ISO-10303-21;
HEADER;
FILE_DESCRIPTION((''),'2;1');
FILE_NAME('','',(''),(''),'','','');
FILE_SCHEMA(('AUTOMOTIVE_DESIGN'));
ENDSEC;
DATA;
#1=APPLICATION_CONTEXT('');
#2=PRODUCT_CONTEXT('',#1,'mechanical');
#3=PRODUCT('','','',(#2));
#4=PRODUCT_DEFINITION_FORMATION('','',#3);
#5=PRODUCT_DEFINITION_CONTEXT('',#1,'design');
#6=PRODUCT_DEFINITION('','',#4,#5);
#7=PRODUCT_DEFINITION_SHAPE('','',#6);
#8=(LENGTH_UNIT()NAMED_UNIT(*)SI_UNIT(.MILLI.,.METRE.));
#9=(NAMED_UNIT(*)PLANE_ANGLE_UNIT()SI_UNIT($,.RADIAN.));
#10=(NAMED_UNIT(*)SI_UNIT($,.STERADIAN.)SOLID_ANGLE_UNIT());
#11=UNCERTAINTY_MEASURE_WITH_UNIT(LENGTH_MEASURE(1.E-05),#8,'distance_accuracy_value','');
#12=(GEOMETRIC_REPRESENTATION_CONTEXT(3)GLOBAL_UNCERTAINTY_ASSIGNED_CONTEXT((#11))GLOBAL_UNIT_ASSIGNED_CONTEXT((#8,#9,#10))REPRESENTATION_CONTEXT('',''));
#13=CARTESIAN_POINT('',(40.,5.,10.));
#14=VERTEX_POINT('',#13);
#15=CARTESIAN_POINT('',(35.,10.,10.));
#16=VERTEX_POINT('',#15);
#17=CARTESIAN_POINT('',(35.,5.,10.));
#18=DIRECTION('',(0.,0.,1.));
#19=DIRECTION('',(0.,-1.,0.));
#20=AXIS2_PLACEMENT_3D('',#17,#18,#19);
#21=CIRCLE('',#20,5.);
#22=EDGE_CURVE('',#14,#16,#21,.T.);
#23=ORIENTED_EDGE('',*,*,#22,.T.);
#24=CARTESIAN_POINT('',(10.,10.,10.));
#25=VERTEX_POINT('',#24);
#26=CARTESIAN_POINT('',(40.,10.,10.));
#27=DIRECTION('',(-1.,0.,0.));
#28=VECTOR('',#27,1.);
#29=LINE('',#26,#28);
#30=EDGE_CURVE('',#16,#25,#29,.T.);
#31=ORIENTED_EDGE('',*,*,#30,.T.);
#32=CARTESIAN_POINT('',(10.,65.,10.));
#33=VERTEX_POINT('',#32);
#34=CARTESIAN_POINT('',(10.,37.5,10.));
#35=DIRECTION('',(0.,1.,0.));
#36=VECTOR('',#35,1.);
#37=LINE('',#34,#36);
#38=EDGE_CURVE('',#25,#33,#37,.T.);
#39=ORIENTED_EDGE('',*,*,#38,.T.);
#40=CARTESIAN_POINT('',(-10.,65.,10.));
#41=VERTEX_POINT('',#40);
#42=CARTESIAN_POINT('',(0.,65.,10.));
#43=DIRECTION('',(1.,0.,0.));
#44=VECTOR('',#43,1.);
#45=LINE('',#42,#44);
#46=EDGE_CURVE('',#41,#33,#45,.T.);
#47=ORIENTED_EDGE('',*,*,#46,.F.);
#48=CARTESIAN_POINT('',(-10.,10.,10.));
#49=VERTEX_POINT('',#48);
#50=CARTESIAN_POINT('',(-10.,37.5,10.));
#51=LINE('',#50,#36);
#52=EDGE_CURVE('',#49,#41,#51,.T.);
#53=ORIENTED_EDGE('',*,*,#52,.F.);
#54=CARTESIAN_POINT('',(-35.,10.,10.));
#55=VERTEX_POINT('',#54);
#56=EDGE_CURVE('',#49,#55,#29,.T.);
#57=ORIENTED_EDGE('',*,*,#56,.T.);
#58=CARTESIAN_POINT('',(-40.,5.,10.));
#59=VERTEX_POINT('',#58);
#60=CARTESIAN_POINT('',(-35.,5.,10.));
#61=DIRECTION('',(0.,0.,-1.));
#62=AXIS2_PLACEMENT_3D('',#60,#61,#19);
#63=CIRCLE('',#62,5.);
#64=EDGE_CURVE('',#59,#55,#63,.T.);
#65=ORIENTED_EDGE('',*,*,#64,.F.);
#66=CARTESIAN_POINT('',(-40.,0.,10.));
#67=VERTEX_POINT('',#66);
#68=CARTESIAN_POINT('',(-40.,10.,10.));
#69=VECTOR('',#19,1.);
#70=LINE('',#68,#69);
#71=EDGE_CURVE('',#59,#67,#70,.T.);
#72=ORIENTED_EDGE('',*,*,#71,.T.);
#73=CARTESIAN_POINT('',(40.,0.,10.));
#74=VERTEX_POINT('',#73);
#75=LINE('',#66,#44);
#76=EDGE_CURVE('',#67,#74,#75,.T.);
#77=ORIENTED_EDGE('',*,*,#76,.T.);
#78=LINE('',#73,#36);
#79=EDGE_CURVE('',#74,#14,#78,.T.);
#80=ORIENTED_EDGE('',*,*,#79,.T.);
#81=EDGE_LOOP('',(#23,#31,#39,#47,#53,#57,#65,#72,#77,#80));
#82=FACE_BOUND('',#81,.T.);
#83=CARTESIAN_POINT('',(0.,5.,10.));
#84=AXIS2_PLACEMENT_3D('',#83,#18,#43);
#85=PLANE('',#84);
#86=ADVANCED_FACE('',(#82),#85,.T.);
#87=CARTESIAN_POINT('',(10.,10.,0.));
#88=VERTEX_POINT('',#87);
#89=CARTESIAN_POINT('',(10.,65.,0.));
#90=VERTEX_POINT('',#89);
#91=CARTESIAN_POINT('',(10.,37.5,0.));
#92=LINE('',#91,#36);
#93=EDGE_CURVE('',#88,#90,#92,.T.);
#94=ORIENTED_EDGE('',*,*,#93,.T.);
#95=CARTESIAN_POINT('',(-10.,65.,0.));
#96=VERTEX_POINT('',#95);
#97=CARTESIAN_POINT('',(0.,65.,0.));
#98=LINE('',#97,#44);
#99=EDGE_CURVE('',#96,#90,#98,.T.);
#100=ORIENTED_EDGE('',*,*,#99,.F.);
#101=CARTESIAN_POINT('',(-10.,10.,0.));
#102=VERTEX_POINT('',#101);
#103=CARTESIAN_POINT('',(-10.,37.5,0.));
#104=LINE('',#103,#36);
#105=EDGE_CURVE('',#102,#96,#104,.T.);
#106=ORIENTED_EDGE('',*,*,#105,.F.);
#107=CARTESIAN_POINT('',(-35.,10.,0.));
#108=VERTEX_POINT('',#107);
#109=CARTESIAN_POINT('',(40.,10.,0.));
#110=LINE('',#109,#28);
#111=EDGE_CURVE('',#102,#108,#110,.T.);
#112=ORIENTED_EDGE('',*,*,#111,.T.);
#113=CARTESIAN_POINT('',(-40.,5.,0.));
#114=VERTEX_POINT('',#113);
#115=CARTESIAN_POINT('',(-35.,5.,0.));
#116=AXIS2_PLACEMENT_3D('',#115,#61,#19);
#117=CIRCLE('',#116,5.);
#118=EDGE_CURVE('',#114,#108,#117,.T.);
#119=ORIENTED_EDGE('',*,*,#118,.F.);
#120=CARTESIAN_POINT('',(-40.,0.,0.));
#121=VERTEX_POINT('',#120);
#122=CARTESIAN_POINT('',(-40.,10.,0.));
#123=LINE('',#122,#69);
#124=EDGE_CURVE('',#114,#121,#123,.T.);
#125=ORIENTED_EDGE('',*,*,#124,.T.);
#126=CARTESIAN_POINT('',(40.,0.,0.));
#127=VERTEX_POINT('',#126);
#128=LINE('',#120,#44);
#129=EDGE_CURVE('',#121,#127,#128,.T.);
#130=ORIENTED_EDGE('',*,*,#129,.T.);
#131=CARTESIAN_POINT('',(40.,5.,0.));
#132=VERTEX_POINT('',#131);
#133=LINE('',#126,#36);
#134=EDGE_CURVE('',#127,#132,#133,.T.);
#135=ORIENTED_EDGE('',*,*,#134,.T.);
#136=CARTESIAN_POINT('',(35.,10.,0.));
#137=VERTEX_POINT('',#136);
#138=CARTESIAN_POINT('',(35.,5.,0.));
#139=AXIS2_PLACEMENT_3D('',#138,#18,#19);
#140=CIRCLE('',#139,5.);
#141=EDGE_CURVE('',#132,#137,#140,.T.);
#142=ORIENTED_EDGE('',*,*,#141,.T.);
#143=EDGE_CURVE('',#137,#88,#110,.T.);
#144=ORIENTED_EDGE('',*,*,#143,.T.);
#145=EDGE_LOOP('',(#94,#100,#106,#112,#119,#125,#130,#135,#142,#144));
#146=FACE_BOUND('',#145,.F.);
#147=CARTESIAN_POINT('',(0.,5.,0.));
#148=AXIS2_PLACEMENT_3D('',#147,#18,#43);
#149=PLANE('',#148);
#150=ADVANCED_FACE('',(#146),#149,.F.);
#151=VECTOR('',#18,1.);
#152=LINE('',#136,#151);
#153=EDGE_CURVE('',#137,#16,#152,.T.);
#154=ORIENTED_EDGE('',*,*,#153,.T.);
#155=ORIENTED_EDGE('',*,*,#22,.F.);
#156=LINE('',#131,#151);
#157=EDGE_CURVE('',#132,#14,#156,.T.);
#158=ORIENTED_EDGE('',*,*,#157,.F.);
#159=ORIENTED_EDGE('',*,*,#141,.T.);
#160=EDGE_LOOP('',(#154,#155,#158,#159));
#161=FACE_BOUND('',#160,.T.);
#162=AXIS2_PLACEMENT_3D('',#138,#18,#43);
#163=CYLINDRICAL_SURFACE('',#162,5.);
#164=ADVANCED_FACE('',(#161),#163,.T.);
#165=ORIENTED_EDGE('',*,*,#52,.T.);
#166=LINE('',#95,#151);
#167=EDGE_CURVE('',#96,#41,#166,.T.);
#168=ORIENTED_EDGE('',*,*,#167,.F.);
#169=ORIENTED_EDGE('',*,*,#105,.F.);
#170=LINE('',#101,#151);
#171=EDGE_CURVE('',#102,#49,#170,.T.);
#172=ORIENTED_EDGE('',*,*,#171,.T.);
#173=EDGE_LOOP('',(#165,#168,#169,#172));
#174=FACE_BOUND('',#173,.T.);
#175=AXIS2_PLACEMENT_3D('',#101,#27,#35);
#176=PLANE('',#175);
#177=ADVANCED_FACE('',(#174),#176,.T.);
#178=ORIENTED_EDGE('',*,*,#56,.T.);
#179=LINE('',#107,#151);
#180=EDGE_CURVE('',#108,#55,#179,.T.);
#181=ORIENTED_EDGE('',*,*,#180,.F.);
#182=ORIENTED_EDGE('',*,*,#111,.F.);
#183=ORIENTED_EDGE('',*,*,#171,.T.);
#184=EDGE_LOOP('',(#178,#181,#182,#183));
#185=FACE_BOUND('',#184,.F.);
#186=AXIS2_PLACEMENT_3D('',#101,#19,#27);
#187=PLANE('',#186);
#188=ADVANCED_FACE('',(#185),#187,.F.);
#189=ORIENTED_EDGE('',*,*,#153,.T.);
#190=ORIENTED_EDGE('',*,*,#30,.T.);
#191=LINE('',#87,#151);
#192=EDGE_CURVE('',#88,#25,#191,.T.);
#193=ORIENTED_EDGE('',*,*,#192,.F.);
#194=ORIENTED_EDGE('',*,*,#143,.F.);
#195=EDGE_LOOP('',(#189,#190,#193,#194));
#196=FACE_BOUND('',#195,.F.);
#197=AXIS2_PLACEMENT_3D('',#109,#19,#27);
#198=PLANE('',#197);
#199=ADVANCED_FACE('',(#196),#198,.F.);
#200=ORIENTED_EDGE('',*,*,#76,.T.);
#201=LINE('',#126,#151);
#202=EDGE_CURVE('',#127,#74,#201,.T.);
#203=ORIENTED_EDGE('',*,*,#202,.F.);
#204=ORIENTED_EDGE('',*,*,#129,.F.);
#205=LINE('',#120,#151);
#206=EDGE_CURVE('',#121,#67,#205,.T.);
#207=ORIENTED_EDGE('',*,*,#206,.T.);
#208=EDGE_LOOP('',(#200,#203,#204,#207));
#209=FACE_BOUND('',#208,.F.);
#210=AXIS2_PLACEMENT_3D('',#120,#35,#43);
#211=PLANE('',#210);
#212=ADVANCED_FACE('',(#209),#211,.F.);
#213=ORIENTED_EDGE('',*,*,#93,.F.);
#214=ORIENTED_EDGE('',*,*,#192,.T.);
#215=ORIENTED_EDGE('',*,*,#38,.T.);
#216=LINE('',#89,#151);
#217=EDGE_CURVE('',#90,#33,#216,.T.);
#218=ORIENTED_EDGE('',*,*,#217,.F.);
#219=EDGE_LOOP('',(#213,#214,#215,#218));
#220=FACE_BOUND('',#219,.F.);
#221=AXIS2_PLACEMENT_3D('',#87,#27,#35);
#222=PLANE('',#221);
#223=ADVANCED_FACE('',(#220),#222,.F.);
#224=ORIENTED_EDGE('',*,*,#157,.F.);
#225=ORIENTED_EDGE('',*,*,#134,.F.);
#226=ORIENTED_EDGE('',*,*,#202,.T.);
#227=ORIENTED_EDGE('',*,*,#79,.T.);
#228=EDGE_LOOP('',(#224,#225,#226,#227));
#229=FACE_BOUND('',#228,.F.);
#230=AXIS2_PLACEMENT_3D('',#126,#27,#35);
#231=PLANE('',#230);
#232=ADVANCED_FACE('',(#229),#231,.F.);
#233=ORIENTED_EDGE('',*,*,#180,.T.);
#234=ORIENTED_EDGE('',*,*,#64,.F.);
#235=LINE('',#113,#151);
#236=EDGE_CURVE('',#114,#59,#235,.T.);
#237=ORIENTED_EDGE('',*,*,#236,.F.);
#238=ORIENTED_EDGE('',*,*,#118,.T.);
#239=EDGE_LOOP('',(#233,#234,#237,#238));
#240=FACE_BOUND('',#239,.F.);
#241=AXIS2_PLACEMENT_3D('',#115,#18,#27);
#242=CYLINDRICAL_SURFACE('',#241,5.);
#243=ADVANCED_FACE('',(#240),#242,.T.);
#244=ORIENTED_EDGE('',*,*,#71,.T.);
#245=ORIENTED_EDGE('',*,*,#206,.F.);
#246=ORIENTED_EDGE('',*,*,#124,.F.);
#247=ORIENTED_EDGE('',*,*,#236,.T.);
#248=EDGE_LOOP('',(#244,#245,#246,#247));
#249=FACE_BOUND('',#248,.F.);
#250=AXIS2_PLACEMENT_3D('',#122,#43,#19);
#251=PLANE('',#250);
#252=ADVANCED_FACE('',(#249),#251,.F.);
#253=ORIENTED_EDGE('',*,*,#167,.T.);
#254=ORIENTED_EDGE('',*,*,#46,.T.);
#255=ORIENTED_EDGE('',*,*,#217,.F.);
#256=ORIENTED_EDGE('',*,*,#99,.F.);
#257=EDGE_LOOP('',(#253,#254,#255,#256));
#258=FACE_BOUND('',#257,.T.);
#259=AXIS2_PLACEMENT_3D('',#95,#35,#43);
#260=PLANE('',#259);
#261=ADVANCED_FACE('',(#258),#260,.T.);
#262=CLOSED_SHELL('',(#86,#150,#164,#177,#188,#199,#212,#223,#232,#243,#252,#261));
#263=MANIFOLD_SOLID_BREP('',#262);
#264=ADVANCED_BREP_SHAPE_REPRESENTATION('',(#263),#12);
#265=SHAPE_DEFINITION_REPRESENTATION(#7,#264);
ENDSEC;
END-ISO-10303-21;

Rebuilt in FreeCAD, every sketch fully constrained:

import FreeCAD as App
import Part
import Sketcher

V = App.Vector


def edges_at(feature, points):
    """Names of the edges that pass closest to the given points."""
    edges = feature.Shape.Edges
    near = lambda p: min(range(len(edges)), key=lambda i: edges[i].distToShape(Part.Vertex(*p))[0])
    return sorted({f"Edge{near(p) + 1}" for p in points})

doc = App.newDocument("Part")
params = doc.addObject("Spreadsheet::Sheet", "Params")
for row, (alias, value) in enumerate([
    ("sketch1_width", "80 mm"),
    ("sketch1_width2", "30 mm"),
    ("sketch1_height", "10 mm"),
    ("sketch1_height2", "55 mm"),
    ("pad1_length", "10 mm"),
    ("fillet_radius", "5 mm"),
], start=1):
    params.set(f"A{row}", alias)
    params.set(f"B{row}", "=" + value)
    params.setAlias(f"B{row}", alias)

body = doc.addObject("PartDesign::Body", "Body")

sketch1 = doc.addObject("Sketcher::SketchObject", "Sketch")
body.addObject(sketch1)
sketch1.AttachmentSupport = (doc.XY_Plane, [""])
sketch1.MapMode = "FlatFace"
sketch1.addGeometry([
    Part.LineSegment(V(-40, 10, 0), V(-40, 0, 0)),
    Part.LineSegment(V(-40, 0, 0), V(40, 0, 0)),
    Part.LineSegment(V(40, 0, 0), V(40, 10, 0)),
    Part.LineSegment(V(40, 10, 0), V(10, 10, 0)),
    Part.LineSegment(V(10, 10, 0), V(10, 65, 0)),
    Part.LineSegment(V(10, 65, 0), V(-10, 65, 0)),
    Part.LineSegment(V(-10, 65, 0), V(-10, 10, 0)),
    Part.LineSegment(V(-10, 10, 0), V(-40, 10, 0)),
], False)
sketch1.addConstraint([
    Sketcher.Constraint("Coincident", 0, 2, 1, 1),
    Sketcher.Constraint("Coincident", 1, 2, 2, 1),
    Sketcher.Constraint("Coincident", 2, 2, 3, 1),
    Sketcher.Constraint("Coincident", 3, 2, 4, 1),
    Sketcher.Constraint("Coincident", 4, 2, 5, 1),
    Sketcher.Constraint("Coincident", 5, 2, 6, 1),
    Sketcher.Constraint("Coincident", 6, 2, 7, 1),
    Sketcher.Constraint("Coincident", 7, 2, 0, 1),
    Sketcher.Constraint("Vertical", 0),
    Sketcher.Constraint("Horizontal", 1),
    Sketcher.Constraint("Vertical", 2),
    Sketcher.Constraint("Horizontal", 3),
    Sketcher.Constraint("Vertical", 4),
    Sketcher.Constraint("Horizontal", 5),
    Sketcher.Constraint("Vertical", 6),
    Sketcher.Constraint("Horizontal", 7),
    Sketcher.Constraint("Symmetric", 0, 2, 1, 2, -1, 1),
    Sketcher.Constraint("Symmetric", 3, 2, 6, 2, -2),
    Sketcher.Constraint("DistanceX", 1, 1, 1, 2, 80.0),
    Sketcher.Constraint("DistanceX", 3, 2, 3, 1, 30.0),
    Sketcher.Constraint("DistanceY", 0, 2, 0, 1, 10.0),
    Sketcher.Constraint("DistanceY", 4, 1, 4, 2, 55.0),
])
sketch1.setExpression("Constraints[18]", "Params.sketch1_width")
sketch1.setExpression("Constraints[19]", "Params.sketch1_width2")
sketch1.setExpression("Constraints[20]", "Params.sketch1_height")
sketch1.setExpression("Constraints[21]", "Params.sketch1_height2")
pad1 = doc.addObject("PartDesign::Pad", "Pad")
body.addObject(pad1)
pad1.Profile = sketch1
pad1.setExpression("Length", "Params.pad1_length")
doc.recompute()

fillet = doc.addObject("PartDesign::Fillet", "Fillet")
body.addObject(fillet)
fillet.Base = (pad1, edges_at(pad1, [(-40, 10, 5), (40, 10, 5)]))
fillet.setExpression("Radius", "Params.fillet_radius")

doc.recompute()
